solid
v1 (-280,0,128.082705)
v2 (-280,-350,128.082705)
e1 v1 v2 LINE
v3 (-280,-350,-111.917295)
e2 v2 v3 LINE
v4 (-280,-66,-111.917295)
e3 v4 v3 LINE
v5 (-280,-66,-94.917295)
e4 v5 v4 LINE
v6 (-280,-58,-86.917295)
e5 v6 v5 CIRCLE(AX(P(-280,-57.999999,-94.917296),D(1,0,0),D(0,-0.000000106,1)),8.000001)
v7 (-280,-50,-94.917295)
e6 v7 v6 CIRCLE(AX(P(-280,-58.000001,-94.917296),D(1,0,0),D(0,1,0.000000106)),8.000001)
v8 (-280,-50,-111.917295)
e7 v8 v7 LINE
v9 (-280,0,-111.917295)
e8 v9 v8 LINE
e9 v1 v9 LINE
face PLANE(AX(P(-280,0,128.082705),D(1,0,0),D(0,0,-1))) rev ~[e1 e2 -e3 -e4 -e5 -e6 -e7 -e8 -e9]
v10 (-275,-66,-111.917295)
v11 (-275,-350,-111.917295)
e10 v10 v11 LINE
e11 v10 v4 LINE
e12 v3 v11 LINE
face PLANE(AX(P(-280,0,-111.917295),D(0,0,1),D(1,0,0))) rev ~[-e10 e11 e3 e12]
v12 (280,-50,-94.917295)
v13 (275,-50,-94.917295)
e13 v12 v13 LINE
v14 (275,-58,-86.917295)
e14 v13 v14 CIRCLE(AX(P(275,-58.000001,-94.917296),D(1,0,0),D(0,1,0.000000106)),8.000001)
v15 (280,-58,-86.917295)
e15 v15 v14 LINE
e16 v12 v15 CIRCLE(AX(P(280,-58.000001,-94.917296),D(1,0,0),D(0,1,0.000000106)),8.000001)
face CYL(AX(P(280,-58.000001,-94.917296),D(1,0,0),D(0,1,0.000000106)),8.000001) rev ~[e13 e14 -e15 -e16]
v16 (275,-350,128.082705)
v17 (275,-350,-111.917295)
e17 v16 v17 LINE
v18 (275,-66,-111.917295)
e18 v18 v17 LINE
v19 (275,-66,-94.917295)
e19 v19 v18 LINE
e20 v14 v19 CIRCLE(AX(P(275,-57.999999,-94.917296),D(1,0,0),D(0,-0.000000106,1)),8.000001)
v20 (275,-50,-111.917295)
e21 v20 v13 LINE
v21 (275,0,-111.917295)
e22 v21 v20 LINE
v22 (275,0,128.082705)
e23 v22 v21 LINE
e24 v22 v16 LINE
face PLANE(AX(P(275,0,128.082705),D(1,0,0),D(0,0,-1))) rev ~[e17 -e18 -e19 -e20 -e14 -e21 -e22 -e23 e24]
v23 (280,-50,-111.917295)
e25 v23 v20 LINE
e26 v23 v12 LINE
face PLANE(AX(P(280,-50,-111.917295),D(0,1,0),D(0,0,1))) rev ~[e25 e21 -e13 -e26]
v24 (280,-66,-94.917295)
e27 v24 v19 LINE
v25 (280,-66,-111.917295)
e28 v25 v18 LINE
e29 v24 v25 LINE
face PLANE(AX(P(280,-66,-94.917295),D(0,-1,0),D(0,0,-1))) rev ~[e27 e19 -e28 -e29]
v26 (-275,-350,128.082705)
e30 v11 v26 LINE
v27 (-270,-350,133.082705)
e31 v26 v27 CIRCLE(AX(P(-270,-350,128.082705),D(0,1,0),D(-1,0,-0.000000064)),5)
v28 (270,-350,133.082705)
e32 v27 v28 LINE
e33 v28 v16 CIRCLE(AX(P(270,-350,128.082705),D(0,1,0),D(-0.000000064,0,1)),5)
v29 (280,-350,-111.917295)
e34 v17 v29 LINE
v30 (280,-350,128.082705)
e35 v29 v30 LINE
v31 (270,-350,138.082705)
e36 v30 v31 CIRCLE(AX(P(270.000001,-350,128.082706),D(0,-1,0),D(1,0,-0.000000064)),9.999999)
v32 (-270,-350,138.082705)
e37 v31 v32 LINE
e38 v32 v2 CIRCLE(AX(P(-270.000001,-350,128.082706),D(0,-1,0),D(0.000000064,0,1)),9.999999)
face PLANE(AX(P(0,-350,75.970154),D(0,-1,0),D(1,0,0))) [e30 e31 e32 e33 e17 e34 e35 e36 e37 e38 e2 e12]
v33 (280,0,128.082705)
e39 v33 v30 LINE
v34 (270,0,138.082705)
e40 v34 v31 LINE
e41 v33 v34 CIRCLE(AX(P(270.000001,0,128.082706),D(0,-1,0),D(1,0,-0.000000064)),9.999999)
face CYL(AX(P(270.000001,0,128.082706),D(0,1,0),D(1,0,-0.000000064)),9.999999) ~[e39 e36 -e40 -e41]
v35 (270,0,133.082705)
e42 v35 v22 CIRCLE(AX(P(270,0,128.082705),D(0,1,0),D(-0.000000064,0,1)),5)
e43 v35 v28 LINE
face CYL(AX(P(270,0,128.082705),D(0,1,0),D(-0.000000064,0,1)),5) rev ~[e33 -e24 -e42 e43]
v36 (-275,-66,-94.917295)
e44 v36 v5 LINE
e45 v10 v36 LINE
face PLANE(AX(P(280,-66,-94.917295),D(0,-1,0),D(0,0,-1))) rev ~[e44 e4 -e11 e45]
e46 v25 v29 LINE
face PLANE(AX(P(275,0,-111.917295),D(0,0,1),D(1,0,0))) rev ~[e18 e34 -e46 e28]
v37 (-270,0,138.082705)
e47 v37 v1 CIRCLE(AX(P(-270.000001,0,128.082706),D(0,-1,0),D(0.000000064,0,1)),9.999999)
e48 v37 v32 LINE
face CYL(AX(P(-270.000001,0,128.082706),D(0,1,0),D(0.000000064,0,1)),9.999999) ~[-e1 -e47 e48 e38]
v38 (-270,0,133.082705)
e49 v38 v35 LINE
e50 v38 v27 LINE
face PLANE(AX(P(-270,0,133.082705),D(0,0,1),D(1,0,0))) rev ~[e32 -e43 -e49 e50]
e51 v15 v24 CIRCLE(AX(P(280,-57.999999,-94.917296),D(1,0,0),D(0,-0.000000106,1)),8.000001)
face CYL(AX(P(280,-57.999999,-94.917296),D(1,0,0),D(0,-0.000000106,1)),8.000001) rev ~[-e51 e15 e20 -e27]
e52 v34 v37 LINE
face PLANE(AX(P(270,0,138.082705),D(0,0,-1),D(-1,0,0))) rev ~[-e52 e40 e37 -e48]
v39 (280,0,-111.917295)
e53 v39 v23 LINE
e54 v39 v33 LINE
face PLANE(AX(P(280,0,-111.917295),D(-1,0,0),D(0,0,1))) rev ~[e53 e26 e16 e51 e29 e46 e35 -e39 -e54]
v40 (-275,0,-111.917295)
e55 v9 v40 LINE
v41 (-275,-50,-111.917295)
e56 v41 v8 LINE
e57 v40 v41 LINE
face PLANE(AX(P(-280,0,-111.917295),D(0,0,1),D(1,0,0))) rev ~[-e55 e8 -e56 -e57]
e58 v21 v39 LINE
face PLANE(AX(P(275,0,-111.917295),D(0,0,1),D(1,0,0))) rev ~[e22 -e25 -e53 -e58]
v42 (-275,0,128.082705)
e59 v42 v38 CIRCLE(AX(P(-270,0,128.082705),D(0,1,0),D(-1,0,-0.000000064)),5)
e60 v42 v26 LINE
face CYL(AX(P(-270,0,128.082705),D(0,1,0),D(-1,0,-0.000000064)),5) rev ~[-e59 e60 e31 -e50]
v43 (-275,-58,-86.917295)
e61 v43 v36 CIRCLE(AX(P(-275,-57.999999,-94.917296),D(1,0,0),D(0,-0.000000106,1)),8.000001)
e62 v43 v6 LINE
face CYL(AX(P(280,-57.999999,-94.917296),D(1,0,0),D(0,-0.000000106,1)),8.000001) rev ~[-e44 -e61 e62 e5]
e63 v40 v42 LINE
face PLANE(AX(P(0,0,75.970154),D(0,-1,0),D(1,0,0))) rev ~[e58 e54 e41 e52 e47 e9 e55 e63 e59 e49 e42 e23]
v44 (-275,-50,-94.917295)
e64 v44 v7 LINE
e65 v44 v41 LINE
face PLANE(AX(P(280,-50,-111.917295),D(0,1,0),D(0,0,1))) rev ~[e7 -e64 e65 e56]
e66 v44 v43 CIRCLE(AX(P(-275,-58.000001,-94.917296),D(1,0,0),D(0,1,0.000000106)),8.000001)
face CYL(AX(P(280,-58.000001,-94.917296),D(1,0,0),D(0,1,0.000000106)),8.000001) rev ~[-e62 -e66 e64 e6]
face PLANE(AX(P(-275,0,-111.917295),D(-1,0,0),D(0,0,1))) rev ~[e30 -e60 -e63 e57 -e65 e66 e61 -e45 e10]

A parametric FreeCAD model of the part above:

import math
import FreeCAD as App
import Part
import Sketcher
from FreeCAD import Vector

doc = App.newDocument("Part")
body = doc.addObject("PartDesign::Body", "Body")

# Sketch on XZ plane
sketch1 = doc.addObject("Sketcher::SketchObject", "Sketch")
body.addObject(sketch1)
sketch1.AttachmentSupport = (doc.XZ_Plane, [""])
sketch1.MapMode = "FlatFace"
sketch1.addGeometry(Part.LineSegment(Vector(270, 138.1, 0), Vector(-270, 138.1, 0)), False)
sketch1.addGeometry(Part.ArcOfCircle(Part.Circle(Vector(-270, 128.1, 0), Vector(0, 0, 1), 10), math.radians(90), math.radians(180)), False)
sketch1.addGeometry(Part.LineSegment(Vector(-280, 128.1, 0), Vector(-280, -111.9, 0)), False)
sketch1.addGeometry(Part.LineSegment(Vector(-280, -111.9, 0), Vector(-275, -111.9, 0)), False)
sketch1.addGeometry(Part.LineSegment(Vector(-275, -111.9, 0), Vector(-275, 128.1, 0)), False)
sketch1.addGeometry(Part.ArcOfCircle(Part.Circle(Vector(-270, 128.1, 0), Vector(0, 0, 1), 5), math.radians(90), math.radians(180)), False)
sketch1.addGeometry(Part.LineSegment(Vector(-270, 133.1, 0), Vector(270, 133.1, 0)), False)
sketch1.addGeometry(Part.ArcOfCircle(Part.Circle(Vector(270, 128.1, 0), Vector(0, 0, 1), 5), math.radians(0), math.radians(90)), False)
sketch1.addGeometry(Part.LineSegment(Vector(275, 128.1, 0), Vector(275, -111.9, 0)), False)
sketch1.addGeometry(Part.LineSegment(Vector(275, -111.9, 0), Vector(280, -111.9, 0)), False)
sketch1.addGeometry(Part.LineSegment(Vector(280, -111.9, 0), Vector(280, 128.1, 0)), False)
sketch1.addGeometry(Part.ArcOfCircle(Part.Circle(Vector(270, 128.1, 0), Vector(0, 0, 1), 10), math.radians(0), math.radians(90)), False)
sketch1.addConstraint(Sketcher.Constraint("Tangent", 0, 2, 1, 1))
sketch1.addConstraint(Sketcher.Constraint("Tangent", 1, 2, 2, 1))
sketch1.addConstraint(Sketcher.Constraint("Coincident", 2, 2, 3, 1))
sketch1.addConstraint(Sketcher.Constraint("Coincident", 3, 2, 4, 1))
sketch1.addConstraint(Sketcher.Constraint("Tangent", 4, 2, 5, 2))
sketch1.addConstraint(Sketcher.Constraint("Tangent", 5, 1, 6, 1))
sketch1.addConstraint(Sketcher.Constraint("Tangent", 6, 2, 7, 2))
sketch1.addConstraint(Sketcher.Constraint("Tangent", 7, 1, 8, 1))
sketch1.addConstraint(Sketcher.Constraint("Coincident", 8, 2, 9, 1))
sketch1.addConstraint(Sketcher.Constraint("Coincident", 9, 2, 10, 1))
sketch1.addConstraint(Sketcher.Constraint("Tangent", 10, 2, 11, 1))
sketch1.addConstraint(Sketcher.Constraint("Tangent", 11, 2, 0, 1))
sketch1.addConstraint(Sketcher.Constraint("Horizontal", 0))
sketch1.addConstraint(Sketcher.Constraint("Vertical", 2))
sketch1.addConstraint(Sketcher.Constraint("Horizontal", 3))
sketch1.addConstraint(Sketcher.Constraint("Vertical", 4))
sketch1.addConstraint(Sketcher.Constraint("Horizontal", 6))
sketch1.addConstraint(Sketcher.Constraint("Vertical", 8))
sketch1.addConstraint(Sketcher.Constraint("Horizontal", 9))
sketch1.addConstraint(Sketcher.Constraint("Vertical", 10))
sketch1.addConstraint(Sketcher.Constraint("Coincident", 5, 3, 1, 3))
sketch1.addConstraint(Sketcher.Constraint("Coincident", 11, 3, 7, 3))
sketch1.addConstraint(Sketcher.Constraint("Equal", 5, 7))
sketch1.addConstraint(Sketcher.Constraint("Symmetric", 3, 2, 8, 2, -2))
sketch1.addConstraint(Sketcher.Constraint("Radius", 1, 9.999999))
sketch1.addConstraint(Sketcher.Constraint("Radius", 5, 5.0))
sketch1.addConstraint(Sketcher.Constraint("DistanceX", 0, 2, 0, 1, 540.0))
sketch1.addConstraint(Sketcher.Constraint("DistanceY", 2, 2, 2, 1, 240.0))
sketch1.addConstraint(Sketcher.Constraint("DistanceY", -1, 1, 1, 3, 128.082706))
pad1 = doc.addObject("PartDesign::Pad", "Pad")
body.addObject(pad1)
pad1.Profile = sketch1
pad1.Length = 350

# Sketch on YZ plane
sketch2 = doc.addObject("Sketcher::SketchObject", "Sketch001")
body.addObject(sketch2)
sketch2.AttachmentSupport = (doc.YZ_Plane, [""])
sketch2.MapMode = "FlatFace"
sketch2.AttachmentOffset = App.Placement(Vector(0, 0, 280), App.Rotation())
sketch2.addGeometry(Part.LineSegment(Vector(-66, -95, 0), Vector(-66, -112, 0)), False)
sketch2.addGeometry(Part.LineSegment(Vector(-66, -112, 0), Vector(-50, -112, 0)), False)
sketch2.addGeometry(Part.LineSegment(Vector(-50, -112, 0), Vector(-50, -95, 0)), False)
sketch2.addGeometry(Part.ArcOfCircle(Part.Circle(Vector(-58, -95, 0), Vector(0, 0, 1), 8), math.radians(0), math.radians(90)), False)
sketch2.addGeometry(Part.ArcOfCircle(Part.Circle(Vector(-58, -95, 0), Vector(0, 0, 1), 8), math.radians(90), math.radians(180)), False)
sketch2.addConstraint(Sketcher.Constraint("Coincident", 0, 2, 1, 1))
sketch2.addConstraint(Sketcher.Constraint("Coincident", 1, 2, 2, 1))
sketch2.addConstraint(Sketcher.Constraint("Tangent", 2, 2, 3, 1))
sketch2.addConstraint(Sketcher.Constraint("Tangent", 3, 2, 4, 1))
sketch2.addConstraint(Sketcher.Constraint("Tangent", 4, 2, 0, 1))
sketch2.addConstraint(Sketcher.Constraint("Vertical", 0))
sketch2.addConstraint(Sketcher.Constraint("Horizontal", 1))
sketch2.addConstraint(Sketcher.Constraint("Vertical", 2))
sketch2.addConstraint(Sketcher.Constraint("Equal", 3, 4))
sketch2.addConstraint(Sketcher.Constraint("Vertical", 4, 3, 3, 2))
sketch2.addConstraint(Sketcher.Constraint("Radius", 3, 8.000001))
sketch2.addConstraint(Sketcher.Constraint("DistanceY", 0, 2, 0, 1, 17.0))
sketch2.addConstraint(Sketcher.Constraint("DistanceX", 3, 3, -1, 1, 58.000001))
sketch2.addConstraint(Sketcher.Constraint("DistanceY", 3, 3, -1, 1, 94.917296))
pocket1 = doc.addObject("PartDesign::Pocket", "Pocket")
body.addObject(pocket1)
pocket1.Profile = sketch2
pocket1.Type = "ThroughAll"

doc.recompute()
